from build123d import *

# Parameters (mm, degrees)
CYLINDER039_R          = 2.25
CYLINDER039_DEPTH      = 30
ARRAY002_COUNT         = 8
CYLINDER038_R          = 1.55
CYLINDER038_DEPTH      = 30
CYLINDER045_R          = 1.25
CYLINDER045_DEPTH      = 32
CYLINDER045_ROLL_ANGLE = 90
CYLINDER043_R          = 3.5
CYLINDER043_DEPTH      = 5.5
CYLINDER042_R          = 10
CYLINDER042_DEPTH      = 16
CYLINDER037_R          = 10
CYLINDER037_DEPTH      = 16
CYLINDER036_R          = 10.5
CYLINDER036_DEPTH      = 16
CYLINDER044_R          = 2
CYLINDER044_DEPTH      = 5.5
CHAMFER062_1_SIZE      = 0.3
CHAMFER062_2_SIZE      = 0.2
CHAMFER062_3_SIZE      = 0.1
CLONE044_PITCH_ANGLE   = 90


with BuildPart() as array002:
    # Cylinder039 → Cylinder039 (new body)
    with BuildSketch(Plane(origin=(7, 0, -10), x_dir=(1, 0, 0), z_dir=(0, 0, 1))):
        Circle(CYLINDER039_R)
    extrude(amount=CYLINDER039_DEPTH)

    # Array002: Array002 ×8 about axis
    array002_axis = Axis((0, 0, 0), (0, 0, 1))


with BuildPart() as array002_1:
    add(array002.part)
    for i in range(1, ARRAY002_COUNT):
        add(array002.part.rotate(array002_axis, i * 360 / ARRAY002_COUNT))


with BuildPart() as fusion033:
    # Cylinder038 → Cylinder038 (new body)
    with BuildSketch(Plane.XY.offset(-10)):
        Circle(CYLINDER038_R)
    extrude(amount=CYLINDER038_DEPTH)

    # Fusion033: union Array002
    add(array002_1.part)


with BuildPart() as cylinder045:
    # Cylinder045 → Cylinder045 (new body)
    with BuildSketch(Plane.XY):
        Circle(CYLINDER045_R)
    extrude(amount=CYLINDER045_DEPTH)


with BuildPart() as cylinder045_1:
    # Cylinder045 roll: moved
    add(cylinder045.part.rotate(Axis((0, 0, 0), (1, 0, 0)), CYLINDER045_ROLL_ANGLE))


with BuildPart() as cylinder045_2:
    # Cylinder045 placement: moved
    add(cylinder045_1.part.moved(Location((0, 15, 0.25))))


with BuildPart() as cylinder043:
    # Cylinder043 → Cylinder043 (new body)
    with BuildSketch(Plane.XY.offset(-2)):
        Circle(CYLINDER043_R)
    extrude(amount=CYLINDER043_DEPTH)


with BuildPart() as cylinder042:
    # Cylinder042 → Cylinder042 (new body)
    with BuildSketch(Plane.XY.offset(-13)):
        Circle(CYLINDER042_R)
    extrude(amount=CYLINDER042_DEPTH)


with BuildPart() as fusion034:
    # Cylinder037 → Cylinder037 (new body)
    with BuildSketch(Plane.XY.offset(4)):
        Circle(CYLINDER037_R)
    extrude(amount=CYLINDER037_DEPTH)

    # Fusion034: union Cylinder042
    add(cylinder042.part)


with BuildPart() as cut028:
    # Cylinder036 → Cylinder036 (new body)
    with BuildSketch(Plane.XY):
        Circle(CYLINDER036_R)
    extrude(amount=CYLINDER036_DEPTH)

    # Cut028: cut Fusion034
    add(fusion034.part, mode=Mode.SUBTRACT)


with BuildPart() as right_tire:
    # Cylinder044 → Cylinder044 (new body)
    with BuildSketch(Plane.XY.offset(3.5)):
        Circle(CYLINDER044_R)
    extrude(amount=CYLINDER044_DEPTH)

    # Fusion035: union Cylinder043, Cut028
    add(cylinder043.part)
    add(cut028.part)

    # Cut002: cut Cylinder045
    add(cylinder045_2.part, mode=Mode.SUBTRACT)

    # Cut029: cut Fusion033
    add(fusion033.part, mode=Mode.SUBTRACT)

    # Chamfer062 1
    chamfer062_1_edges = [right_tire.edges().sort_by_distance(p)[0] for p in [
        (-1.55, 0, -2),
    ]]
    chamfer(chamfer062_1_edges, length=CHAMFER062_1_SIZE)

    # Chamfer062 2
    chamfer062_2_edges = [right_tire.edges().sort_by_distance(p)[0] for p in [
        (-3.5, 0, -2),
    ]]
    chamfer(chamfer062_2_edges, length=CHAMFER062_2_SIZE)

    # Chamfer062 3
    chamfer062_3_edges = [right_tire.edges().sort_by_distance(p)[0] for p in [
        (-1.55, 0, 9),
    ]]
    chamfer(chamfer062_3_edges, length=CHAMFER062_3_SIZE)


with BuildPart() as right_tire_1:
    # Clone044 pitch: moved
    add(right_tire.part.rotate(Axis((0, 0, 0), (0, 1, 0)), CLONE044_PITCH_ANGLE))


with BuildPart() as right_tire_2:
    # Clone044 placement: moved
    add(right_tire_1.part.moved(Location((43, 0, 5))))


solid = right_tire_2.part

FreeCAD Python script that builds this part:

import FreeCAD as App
import Part
import Sketcher


def edges_at(feature, points):
    """Names of the edges that pass closest to the given points."""
    edges = feature.Shape.Edges
    near = lambda p: min(range(len(edges)), key=lambda i: edges[i].distToShape(Part.Vertex(*p))[0])
    return sorted({f"Edge{near(p) + 1}" for p in points})

doc = App.newDocument("Part")
body = doc.addObject("PartDesign::Body", "Body")

# Sketch on XY plane
sketch1 = body.newObject("Sketcher::SketchObject", "Sketch")
sketch1.AttachmentSupport = (doc.getObject("XY_Plane"), [""])
sketch1.MapMode = "FlatFace"
sketch1.AttachmentOffset = App.Placement(App.Vector(0, 0, -10), App.Rotation())
sketch1.addGeometry(Part.Circle(App.Vector(7, 0, 0), App.Vector(0, 0, 1), 2.25), False)
sketch1.addConstraint([
    Sketcher.Constraint("PointOnObject", 0, 3, -1),
    Sketcher.Constraint("Diameter", 0, 4.5),
    Sketcher.Constraint("DistanceX", -1, 1, 0, 3, 7.0),
])
pad1 = body.newObject("PartDesign::Pad", "Pad")
pad1.Profile = sketch1
pad1.Length = 30
body2 = doc.addObject("PartDesign::Body", "Body001")
body2.AllowCompound = True
doc.recompute()

body2.BaseFeature = body
doc.recompute()

body3 = doc.addObject("PartDesign::Body", "Body002")
body3.BaseFeature = body
body3.Placement = App.Placement(App.Vector(0, 0, 0), App.Rotation(App.Vector(0, 0, 1), 45))
boolean = body2.newObject("PartDesign::Boolean", "Boolean")
boolean.Type = "Fuse"
boolean.addObjects([body3])
doc.recompute()

body4 = doc.addObject("PartDesign::Body", "Body003")
body4.BaseFeature = body
body4.Placement = App.Placement(App.Vector(0, 0, 0), App.Rotation(App.Vector(0, 0, 1), 90))
boolean2 = body2.newObject("PartDesign::Boolean", "Boolean001")
boolean2.Type = "Fuse"
boolean2.addObjects([body4])
doc.recompute()

body5 = doc.addObject("PartDesign::Body", "Body004")
body5.BaseFeature = body
body5.Placement = App.Placement(App.Vector(0, 0, 0), App.Rotation(App.Vector(0, 0, 1), 135))
boolean3 = body2.newObject("PartDesign::Boolean", "Boolean002")
boolean3.Type = "Fuse"
boolean3.addObjects([body5])
doc.recompute()

body6 = doc.addObject("PartDesign::Body", "Body005")
body6.BaseFeature = body
body6.Placement = App.Placement(App.Vector(0, 0, 0), App.Rotation(App.Vector(0, 0, 1), 180))
boolean4 = body2.newObject("PartDesign::Boolean", "Boolean003")
boolean4.Type = "Fuse"
boolean4.addObjects([body6])
doc.recompute()

body7 = doc.addObject("PartDesign::Body", "Body006")
body7.BaseFeature = body
body7.Placement = App.Placement(App.Vector(0, 0, 0), App.Rotation(App.Vector(0, 0, 1), 225))
boolean5 = body2.newObject("PartDesign::Boolean", "Boolean004")
boolean5.Type = "Fuse"
boolean5.addObjects([body7])
doc.recompute()

body8 = doc.addObject("PartDesign::Body", "Body007")
body8.BaseFeature = body
body8.Placement = App.Placement(App.Vector(0, 0, 0), App.Rotation(App.Vector(0, 0, 1), 270))
boolean6 = body2.newObject("PartDesign::Boolean", "Boolean005")
boolean6.Type = "Fuse"
boolean6.addObjects([body8])
doc.recompute()

body.Placement = App.Placement(App.Vector(0, 0, 0), App.Rotation(App.Vector(0, 0, 1), 315))
boolean7 = body2.newObject("PartDesign::Boolean", "Boolean006")
boolean7.Type = "Fuse"
boolean7.addObjects([body])
body9 = doc.addObject("PartDesign::Body", "Body008")
body9.AllowCompound = True

# Sketch on XY plane
sketch2 = body9.newObject("Sketcher::SketchObject", "Sketch001")
sketch2.AttachmentSupport = (doc.getObject("XY_Plane008"), [""])
sketch2.MapMode = "FlatFace"
sketch2.AttachmentOffset = App.Placement(App.Vector(0, 0, -10), App.Rotation())
sketch2.addGeometry(Part.Circle(App.Vector(0, 0, 0), App.Vector(0, 0, 1), 1.55), False)
sketch2.addConstraint([
    Sketcher.Constraint("Coincident", 0, 3, -1, 1),
    Sketcher.Constraint("Diameter", 0, 3.1),
])
pad2 = body9.newObject("PartDesign::Pad", "Pad001")
pad2.Profile = sketch2
pad2.Length = 30
doc.recompute()

boolean8 = body9.newObject("PartDesign::Boolean", "Boolean007")
boolean8.Type = "Fuse"
boolean8.addObjects([body2])
body10 = doc.addObject("PartDesign::Body", "Body009")

# Sketch on XY plane
sketch3 = body10.newObject("Sketcher::SketchObject", "Sketch002")
sketch3.AttachmentSupport = (doc.getObject("XY_Plane009"), [""])
sketch3.MapMode = "FlatFace"
sketch3.addGeometry(Part.Circle(App.Vector(0, 0, 0), App.Vector(0, 0, 1), 1.25), False)
sketch3.addConstraint([
    Sketcher.Constraint("Coincident", 0, 3, -1, 1),
    Sketcher.Constraint("Diameter", 0, 2.5),
])
pad3 = body10.newObject("PartDesign::Pad", "Pad002")
pad3.Profile = sketch3
pad3.Length = 32
body11 = doc.addObject("PartDesign::Body", "Body010")
doc.recompute()

body10.Placement = App.Placement(App.Vector(0, 0, 0), App.Rotation(App.Vector(1, 0, 0), 90))
boolean9 = body11.newObject("PartDesign::Boolean", "Boolean008")
boolean9.Type = "Fuse"
boolean9.addObjects([body10])
body12 = doc.addObject("PartDesign::Body", "Body011")
doc.recompute()

body11.Placement = App.Placement(App.Vector(0, 15, 0.25), App.Rotation(App.Vector(0, 0, 1), 0))
boolean10 = body12.newObject("PartDesign::Boolean", "Boolean009")
boolean10.Type = "Fuse"
boolean10.addObjects([body11])
body13 = doc.addObject("PartDesign::Body", "Body012")

# Sketch on XY plane
sketch4 = body13.newObject("Sketcher::SketchObject", "Sketch003")
sketch4.AttachmentSupport = (doc.getObject("XY_Plane012"), [""])
sketch4.MapMode = "FlatFace"
sketch4.AttachmentOffset = App.Placement(App.Vector(0, 0, -2), App.Rotation())
sketch4.addGeometry(Part.Circle(App.Vector(0, 0, 0), App.Vector(0, 0, 1), 3.5), False)
sketch4.addConstraint([
    Sketcher.Constraint("Coincident", 0, 3, -1, 1),
    Sketcher.Constraint("Diameter", 0, 7.0),
])
pad4 = body13.newObject("PartDesign::Pad", "Pad003")
pad4.Profile = sketch4
pad4.Length = 5.5
body14 = doc.addObject("PartDesign::Body", "Body013")

# Sketch on XY plane
sketch5 = body14.newObject("Sketcher::SketchObject", "Sketch004")
sketch5.AttachmentSupport = (doc.getObject("XY_Plane013"), [""])
sketch5.MapMode = "FlatFace"
sketch5.AttachmentOffset = App.Placement(App.Vector(0, 0, -13), App.Rotation())
sketch5.addGeometry(Part.Circle(App.Vector(0, 0, 0), App.Vector(0, 0, 1), 10), False)
sketch5.addConstraint([
    Sketcher.Constraint("Coincident", 0, 3, -1, 1),
    Sketcher.Constraint("Diameter", 0, 20.0),
])
pad5 = body14.newObject("PartDesign::Pad", "Pad004")
pad5.Profile = sketch5
pad5.Length = 16
body15 = doc.addObject("PartDesign::Body", "Body014")
body15.AllowCompound = True

# Sketch on XY plane
sketch6 = body15.newObject("Sketcher::SketchObject", "Sketch005")
sketch6.AttachmentSupport = (doc.getObject("XY_Plane014"), [""])
sketch6.MapMode = "FlatFace"
sketch6.AttachmentOffset = App.Placement(App.Vector(0, 0, 4), App.Rotation())
sketch6.addGeometry(Part.Circle(App.Vector(0, 0, 0), App.Vector(0, 0, 1), 10), False)
sketch6.addConstraint([
    Sketcher.Constraint("Coincident", 0, 3, -1, 1),
    Sketcher.Constraint("Diameter", 0, 20.0),
])
pad6 = body15.newObject("PartDesign::Pad", "Pad005")
pad6.Profile = sketch6
pad6.Length = 16
doc.recompute()

boolean11 = body15.newObject("PartDesign::Boolean", "Boolean010")
boolean11.Type = "Fuse"
boolean11.addObjects([body14])
body16 = doc.addObject("PartDesign::Body", "Body015")

# Sketch on XY plane
sketch7 = body16.newObject("Sketcher::SketchObject", "Sketch006")
sketch7.AttachmentSupport = (doc.getObject("XY_Plane015"), [""])
sketch7.MapMode = "FlatFace"
sketch7.addGeometry(Part.Circle(App.Vector(0, 0, 0), App.Vector(0, 0, 1), 10.5), False)
sketch7.addConstraint([
    Sketcher.Constraint("Coincident", 0, 3, -1, 1),
    Sketcher.Constraint("Diameter", 0, 21.0),
])
pad7 = body16.newObject("PartDesign::Pad", "Pad006")
pad7.Profile = sketch7
pad7.Length = 16
doc.recompute()

boolean12 = body16.newObject("PartDesign::Boolean", "Boolean011")
boolean12.Type = "Cut"
boolean12.addObjects([body15])
body17 = doc.addObject("PartDesign::Body", "Body016")

# Sketch on XY plane
sketch8 = body17.newObject("Sketcher::SketchObject", "Sketch007")
sketch8.AttachmentSupport = (doc.getObject("XY_Plane016"), [""])
sketch8.MapMode = "FlatFace"
sketch8.AttachmentOffset = App.Placement(App.Vector(0, 0, 3.5), App.Rotation())
sketch8.addGeometry(Part.Circle(App.Vector(0, 0, 0), App.Vector(0, 0, 1), 2), False)
sketch8.addConstraint([
    Sketcher.Constraint("Coincident", 0, 3, -1, 1),
    Sketcher.Constraint("Diameter", 0, 4.0),
])
pad8 = body17.newObject("PartDesign::Pad", "Pad007")
pad8.Profile = sketch8
pad8.Length = 5.5
doc.recompute()

boolean13 = body17.newObject("PartDesign::Boolean", "Boolean012")
boolean13.Type = "Fuse"
boolean13.addObjects([body13])
doc.recompute()

boolean14 = body17.newObject("PartDesign::Boolean", "Boolean013")
boolean14.Type = "Fuse"
boolean14.addObjects([body16])
doc.recompute()

boolean15 = body17.newObject("PartDesign::Boolean", "Boolean014")
boolean15.Type = "Cut"
boolean15.addObjects([body12])
doc.recompute()

boolean16 = body17.newObject("PartDesign::Boolean", "Boolean015")
boolean16.Type = "Cut"
boolean16.addObjects([body9])
doc.recompute()

chamfer = body17.newObject("PartDesign::Chamfer", "Chamfer")
chamfer.Base = (boolean16, edges_at(boolean16, [(-1.55, 0, -2)]))
chamfer.Size = 0.3
doc.recompute()

chamfer2 = body17.newObject("PartDesign::Chamfer", "Chamfer001")
chamfer2.Base = (chamfer, edges_at(chamfer, [(-3.5, 0, -2)]))
chamfer2.Size = 0.2
doc.recompute()

chamfer3 = body17.newObject("PartDesign::Chamfer", "Chamfer002")
chamfer3.Base = (chamfer2, edges_at(chamfer2, [(-1.55, 0, 9)]))
chamfer3.Size = 0.1
body18 = doc.addObject("PartDesign::Body", "Body017")
doc.recompute()

body17.Placement = App.Placement(App.Vector(0, 0, 0), App.Rotation(App.Vector(0, 1, 0), 90))
boolean17 = body18.newObject("PartDesign::Boolean", "Boolean016")
boolean17.Type = "Fuse"
boolean17.addObjects([body17])
body19 = doc.addObject("PartDesign::Body", "Body018")
doc.recompute()

body18.Placement = App.Placement(App.Vector(43, 0, 5), App.Rotation(App.Vector(0, 0, 1), 0))
boolean18 = body19.newObject("PartDesign::Boolean", "Boolean017")
boolean18.Type = "Fuse"
boolean18.addObjects([body18])

doc.recompute()
